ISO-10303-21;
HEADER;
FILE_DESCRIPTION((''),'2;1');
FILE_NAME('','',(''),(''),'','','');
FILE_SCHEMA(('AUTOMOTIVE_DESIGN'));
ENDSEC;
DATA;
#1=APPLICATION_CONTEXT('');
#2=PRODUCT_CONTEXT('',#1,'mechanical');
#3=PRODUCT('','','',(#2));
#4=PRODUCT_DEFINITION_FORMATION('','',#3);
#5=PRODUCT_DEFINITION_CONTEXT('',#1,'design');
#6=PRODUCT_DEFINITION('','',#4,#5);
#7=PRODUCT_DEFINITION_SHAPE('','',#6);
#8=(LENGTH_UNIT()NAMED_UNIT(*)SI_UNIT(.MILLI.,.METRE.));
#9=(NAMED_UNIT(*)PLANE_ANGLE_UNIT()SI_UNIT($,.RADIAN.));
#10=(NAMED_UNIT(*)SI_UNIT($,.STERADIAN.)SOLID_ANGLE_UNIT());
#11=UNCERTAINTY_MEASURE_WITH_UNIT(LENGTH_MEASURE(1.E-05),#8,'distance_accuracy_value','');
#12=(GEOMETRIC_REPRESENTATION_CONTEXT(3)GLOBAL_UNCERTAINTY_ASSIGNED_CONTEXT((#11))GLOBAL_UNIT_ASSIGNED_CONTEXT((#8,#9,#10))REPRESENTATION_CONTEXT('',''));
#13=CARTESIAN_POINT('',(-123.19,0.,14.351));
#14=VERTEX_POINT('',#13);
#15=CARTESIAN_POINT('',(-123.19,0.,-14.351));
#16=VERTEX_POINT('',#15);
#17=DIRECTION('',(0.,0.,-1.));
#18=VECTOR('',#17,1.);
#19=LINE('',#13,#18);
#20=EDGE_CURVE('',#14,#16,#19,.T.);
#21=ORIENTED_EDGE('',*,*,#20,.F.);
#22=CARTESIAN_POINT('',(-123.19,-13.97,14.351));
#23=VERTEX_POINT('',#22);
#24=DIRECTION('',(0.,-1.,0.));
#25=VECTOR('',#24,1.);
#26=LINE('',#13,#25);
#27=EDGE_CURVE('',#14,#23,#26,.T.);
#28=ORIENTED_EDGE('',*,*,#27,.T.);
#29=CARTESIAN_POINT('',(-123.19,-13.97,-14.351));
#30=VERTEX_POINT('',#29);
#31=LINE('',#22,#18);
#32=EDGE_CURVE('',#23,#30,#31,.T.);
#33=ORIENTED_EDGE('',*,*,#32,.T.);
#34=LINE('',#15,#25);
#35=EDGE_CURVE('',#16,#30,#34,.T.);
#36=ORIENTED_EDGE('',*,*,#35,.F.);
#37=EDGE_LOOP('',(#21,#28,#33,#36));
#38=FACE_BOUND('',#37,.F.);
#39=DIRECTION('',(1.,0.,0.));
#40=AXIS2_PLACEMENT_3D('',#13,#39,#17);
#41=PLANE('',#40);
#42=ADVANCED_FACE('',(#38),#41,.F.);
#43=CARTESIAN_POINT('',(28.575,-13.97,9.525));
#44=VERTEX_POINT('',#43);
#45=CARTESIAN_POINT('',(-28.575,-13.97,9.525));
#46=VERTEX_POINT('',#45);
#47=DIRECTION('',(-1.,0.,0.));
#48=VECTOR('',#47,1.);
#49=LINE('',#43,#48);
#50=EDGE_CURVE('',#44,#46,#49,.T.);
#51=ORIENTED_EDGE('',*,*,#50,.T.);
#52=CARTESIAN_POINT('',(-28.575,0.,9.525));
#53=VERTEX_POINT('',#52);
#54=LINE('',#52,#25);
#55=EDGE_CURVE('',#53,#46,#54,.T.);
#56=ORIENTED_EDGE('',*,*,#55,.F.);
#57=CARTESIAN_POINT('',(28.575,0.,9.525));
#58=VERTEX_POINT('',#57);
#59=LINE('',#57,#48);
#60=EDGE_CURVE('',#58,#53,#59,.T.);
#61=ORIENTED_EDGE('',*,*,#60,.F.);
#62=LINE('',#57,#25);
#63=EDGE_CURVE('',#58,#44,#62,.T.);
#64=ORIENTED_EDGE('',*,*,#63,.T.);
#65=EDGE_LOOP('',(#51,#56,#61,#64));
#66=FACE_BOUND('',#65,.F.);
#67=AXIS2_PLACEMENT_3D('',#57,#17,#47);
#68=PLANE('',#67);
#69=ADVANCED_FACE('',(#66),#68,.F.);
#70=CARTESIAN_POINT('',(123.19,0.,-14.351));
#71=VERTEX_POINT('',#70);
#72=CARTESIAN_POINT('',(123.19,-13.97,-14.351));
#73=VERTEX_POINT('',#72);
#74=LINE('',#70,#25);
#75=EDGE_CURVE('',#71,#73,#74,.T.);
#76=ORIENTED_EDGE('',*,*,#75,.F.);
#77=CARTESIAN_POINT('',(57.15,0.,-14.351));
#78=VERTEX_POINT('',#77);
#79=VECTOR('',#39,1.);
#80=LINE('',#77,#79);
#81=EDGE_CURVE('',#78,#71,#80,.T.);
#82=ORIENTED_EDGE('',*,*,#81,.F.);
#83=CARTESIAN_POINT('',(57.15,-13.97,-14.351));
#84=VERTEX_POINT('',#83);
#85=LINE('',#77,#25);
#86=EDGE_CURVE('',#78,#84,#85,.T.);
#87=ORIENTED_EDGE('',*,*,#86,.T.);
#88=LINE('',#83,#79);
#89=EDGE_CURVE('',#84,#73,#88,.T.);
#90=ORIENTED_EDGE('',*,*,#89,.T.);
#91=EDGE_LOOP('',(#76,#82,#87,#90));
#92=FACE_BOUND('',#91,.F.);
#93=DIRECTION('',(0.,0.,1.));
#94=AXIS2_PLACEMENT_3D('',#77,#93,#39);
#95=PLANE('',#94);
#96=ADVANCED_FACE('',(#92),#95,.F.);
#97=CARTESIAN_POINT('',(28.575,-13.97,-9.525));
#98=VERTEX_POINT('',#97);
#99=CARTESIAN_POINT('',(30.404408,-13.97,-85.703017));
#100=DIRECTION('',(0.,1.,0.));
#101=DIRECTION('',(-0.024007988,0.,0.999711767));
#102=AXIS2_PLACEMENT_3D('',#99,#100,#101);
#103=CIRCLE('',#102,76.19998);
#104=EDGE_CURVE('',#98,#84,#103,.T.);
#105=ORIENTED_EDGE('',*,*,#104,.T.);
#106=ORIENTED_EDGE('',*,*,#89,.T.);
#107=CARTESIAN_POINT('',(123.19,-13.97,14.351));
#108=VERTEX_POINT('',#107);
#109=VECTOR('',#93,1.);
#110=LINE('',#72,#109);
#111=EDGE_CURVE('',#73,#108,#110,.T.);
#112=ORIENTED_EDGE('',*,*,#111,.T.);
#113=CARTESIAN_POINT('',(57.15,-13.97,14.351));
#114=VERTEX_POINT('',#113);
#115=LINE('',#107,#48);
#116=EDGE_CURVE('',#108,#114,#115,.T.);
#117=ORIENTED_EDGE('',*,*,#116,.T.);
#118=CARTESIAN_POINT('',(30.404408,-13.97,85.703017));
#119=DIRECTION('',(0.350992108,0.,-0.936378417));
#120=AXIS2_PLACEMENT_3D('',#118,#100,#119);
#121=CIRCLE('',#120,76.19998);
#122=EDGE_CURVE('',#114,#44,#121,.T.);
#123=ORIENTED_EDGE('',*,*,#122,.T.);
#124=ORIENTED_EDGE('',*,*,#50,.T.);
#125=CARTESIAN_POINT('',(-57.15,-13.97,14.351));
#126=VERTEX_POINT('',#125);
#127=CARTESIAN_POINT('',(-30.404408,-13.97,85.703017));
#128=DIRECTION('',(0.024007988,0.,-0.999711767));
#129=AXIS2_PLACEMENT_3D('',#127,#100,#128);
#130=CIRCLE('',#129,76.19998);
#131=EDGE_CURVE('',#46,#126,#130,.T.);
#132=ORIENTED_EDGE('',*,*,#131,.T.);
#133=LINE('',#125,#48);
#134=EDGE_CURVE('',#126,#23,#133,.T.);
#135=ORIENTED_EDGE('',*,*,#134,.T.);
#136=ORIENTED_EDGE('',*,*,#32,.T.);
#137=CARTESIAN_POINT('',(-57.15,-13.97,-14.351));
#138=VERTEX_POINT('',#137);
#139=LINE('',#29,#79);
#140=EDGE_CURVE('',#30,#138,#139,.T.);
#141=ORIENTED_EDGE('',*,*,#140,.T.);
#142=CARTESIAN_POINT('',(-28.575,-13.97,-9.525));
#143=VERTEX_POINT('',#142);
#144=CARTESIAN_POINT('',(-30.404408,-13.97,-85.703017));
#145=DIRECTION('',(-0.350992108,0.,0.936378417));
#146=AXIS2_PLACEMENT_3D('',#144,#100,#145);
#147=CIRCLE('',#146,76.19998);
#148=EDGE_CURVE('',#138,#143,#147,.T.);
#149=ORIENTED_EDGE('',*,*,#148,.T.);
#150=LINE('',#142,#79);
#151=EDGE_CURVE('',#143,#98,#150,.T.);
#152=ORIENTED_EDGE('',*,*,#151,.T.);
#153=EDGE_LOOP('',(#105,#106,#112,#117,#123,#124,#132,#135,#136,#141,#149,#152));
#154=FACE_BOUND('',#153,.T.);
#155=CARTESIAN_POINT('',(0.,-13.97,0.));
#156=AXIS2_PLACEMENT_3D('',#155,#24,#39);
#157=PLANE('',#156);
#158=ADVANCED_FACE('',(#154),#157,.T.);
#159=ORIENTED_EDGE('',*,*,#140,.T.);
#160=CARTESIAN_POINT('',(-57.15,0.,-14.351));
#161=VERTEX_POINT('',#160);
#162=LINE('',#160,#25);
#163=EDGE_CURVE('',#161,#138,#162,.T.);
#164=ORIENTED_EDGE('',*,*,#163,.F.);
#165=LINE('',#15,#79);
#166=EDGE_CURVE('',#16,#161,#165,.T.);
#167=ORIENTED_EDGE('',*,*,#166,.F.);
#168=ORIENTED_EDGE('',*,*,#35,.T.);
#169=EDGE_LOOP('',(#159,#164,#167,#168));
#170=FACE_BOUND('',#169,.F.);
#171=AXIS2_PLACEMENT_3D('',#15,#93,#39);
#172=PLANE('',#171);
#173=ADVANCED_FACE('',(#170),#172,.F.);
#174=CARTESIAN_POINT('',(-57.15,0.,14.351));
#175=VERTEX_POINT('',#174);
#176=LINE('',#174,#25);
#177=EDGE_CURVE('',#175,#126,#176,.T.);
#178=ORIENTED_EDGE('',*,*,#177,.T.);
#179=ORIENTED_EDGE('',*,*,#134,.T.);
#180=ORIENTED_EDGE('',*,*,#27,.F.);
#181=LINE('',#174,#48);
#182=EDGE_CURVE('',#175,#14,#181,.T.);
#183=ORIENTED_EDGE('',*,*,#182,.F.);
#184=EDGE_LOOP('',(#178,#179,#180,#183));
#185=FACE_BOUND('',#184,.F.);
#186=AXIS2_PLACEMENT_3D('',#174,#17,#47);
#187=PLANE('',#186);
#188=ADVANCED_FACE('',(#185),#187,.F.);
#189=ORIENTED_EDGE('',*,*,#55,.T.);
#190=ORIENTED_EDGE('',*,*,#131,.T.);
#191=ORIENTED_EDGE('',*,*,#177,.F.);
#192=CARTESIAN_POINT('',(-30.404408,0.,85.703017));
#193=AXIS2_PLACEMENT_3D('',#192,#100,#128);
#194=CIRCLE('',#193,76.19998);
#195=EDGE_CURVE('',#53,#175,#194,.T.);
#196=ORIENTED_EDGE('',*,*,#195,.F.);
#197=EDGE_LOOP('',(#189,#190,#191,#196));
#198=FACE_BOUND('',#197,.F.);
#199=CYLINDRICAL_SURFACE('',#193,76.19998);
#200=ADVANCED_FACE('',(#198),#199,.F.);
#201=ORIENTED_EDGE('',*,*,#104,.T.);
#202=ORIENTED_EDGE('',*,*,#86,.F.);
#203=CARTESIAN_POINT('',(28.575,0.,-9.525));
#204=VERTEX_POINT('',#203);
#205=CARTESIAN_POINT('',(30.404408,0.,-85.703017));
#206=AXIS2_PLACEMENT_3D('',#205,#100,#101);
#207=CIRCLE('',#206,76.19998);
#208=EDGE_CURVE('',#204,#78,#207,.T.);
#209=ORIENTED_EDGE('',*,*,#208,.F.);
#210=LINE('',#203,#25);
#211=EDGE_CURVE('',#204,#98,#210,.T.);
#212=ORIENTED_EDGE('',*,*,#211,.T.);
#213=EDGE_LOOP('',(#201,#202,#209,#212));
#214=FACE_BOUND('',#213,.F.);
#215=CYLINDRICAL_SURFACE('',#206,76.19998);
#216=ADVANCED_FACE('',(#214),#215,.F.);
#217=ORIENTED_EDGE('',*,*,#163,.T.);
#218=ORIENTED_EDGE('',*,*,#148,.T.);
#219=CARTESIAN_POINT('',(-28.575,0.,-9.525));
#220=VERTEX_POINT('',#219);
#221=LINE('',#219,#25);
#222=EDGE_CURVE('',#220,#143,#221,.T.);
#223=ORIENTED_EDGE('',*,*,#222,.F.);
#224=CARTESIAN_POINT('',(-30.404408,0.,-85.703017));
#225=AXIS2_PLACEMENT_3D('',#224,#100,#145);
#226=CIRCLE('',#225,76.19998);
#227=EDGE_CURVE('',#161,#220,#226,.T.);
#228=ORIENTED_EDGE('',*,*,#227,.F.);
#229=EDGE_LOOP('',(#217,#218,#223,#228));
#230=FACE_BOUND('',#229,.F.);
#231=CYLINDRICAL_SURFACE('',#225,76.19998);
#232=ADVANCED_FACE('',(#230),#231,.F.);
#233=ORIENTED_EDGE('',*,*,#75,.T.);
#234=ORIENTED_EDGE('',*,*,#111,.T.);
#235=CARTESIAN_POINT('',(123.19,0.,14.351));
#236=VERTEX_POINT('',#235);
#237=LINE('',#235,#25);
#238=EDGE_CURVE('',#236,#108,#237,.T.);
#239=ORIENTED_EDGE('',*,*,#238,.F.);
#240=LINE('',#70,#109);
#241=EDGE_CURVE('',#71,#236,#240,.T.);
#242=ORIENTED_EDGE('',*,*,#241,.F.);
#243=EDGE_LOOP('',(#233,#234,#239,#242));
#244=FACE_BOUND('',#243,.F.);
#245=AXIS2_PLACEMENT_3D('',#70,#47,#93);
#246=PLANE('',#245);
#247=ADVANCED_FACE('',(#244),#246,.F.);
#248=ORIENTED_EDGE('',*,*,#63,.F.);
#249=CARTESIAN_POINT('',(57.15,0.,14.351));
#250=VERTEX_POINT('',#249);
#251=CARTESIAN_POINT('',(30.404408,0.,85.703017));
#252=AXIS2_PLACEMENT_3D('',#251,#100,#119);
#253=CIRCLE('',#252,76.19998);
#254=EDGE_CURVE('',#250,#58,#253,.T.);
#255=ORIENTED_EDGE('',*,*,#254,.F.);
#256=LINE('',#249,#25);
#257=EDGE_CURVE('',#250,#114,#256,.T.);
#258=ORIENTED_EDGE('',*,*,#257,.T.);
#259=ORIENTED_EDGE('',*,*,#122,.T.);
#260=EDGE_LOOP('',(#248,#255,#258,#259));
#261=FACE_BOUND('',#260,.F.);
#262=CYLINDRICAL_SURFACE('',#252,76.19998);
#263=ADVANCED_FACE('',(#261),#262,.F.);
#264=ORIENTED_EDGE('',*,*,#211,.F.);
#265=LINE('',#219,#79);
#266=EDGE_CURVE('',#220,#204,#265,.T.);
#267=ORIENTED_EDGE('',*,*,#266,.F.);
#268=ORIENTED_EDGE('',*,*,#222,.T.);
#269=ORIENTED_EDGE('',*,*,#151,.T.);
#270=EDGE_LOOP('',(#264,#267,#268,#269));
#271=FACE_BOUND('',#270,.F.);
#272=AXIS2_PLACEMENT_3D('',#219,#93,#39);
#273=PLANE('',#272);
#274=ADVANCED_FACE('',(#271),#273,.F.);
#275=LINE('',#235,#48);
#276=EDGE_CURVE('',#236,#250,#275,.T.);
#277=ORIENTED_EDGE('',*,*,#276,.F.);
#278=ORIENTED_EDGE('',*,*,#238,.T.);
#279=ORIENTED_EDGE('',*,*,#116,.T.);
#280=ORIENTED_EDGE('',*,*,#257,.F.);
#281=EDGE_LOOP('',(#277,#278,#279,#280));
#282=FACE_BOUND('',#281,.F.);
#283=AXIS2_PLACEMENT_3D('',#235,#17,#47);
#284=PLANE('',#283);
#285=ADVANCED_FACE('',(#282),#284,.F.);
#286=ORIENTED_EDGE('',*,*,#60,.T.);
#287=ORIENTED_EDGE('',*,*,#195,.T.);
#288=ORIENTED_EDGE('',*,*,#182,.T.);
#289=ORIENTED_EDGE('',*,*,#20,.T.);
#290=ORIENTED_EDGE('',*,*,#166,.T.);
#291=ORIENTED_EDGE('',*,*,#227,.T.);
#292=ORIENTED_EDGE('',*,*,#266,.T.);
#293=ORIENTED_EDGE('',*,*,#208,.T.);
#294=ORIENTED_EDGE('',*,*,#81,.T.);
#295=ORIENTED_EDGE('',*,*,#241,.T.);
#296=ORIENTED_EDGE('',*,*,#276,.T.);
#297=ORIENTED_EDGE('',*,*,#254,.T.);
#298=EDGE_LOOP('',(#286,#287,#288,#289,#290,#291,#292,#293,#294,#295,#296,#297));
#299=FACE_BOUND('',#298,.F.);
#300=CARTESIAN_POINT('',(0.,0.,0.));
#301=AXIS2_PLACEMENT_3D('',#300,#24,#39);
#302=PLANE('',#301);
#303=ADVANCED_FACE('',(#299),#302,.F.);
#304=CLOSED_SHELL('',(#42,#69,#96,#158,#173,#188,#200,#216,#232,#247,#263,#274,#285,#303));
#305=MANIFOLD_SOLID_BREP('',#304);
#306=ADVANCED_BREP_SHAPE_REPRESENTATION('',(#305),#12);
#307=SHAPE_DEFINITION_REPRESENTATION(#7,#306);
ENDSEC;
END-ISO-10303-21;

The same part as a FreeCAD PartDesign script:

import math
import FreeCAD as App
import Part
import Sketcher
Q = App.Units.Quantity

doc = App.newDocument("Part")
body = doc.addObject("PartDesign::Body", "Body")

# Sketch on XZ plane
sketch1 = body.newObject("Sketcher::SketchObject", "Sketch")
sketch1.AttachmentSupport = (doc.getObject("XZ_Plane"), [""])
sketch1.MapMode = "FlatFace"
sketch1.addGeometry([
    Part.LineSegment(App.Vector(29, 10, 0), App.Vector(-29, 10, 0)),  # 0
    Part.ArcOfCircle(Part.Circle(App.Vector(-30, 86, 0), App.Vector(0, 0, 1), 76), math.radians(-111), math.radians(-89)),  # 1
    Part.LineSegment(App.Vector(-57, 14, 0), App.Vector(-123, 14, 0)),  # 2
    Part.LineSegment(App.Vector(-123, 14, 0), App.Vector(-123, -14, 0)),  # 3
    Part.LineSegment(App.Vector(-123, -14, 0), App.Vector(-57, -14, 0)),  # 4
    Part.ArcOfCircle(Part.Circle(App.Vector(-30, -86, 0), App.Vector(0, 0, 1), 76), math.radians(89), math.radians(111)),  # 5
    Part.LineSegment(App.Vector(-29, -10, 0), App.Vector(29, -10, 0)),  # 6
    Part.ArcOfCircle(Part.Circle(App.Vector(30, -86, 0), App.Vector(0, 0, 1), 76), math.radians(69), math.radians(91)),  # 7
    Part.LineSegment(App.Vector(57, -14, 0), App.Vector(123, -14, 0)),  # 8
    Part.LineSegment(App.Vector(123, -14, 0), App.Vector(123, 14, 0)),  # 9
    Part.LineSegment(App.Vector(123, 14, 0), App.Vector(57, 14, 0)),  # 10
    Part.ArcOfCircle(Part.Circle(App.Vector(30, 86, 0), App.Vector(0, 0, 1), 76), math.radians(-91), math.radians(-69)),  # 11
], False)
sketch1.addConstraint([
    Sketcher.Constraint("Coincident", 0, 2, 1, 2),
    Sketcher.Constraint("Coincident", 1, 1, 2, 1),
    Sketcher.Constraint("Coincident", 2, 2, 3, 1),
    Sketcher.Constraint("Coincident", 3, 2, 4, 1),
    Sketcher.Constraint("Coincident", 4, 2, 5, 2),
    Sketcher.Constraint("Coincident", 5, 1, 6, 1),
    Sketcher.Constraint("Coincident", 6, 2, 7, 2),
    Sketcher.Constraint("Coincident", 7, 1, 8, 1),
    Sketcher.Constraint("Coincident", 8, 2, 9, 1),
    Sketcher.Constraint("Coincident", 9, 2, 10, 1),
    Sketcher.Constraint("Coincident", 10, 2, 11, 2),
    Sketcher.Constraint("Coincident", 11, 1, 0, 1),
    Sketcher.Constraint("Horizontal", 0),
    Sketcher.Constraint("Horizontal", 2),
    Sketcher.Constraint("Vertical", 3),
    Sketcher.Constraint("Horizontal", 4),
    Sketcher.Constraint("Horizontal", 6),
    Sketcher.Constraint("Horizontal", 8),
    Sketcher.Constraint("Vertical", 9),
    Sketcher.Constraint("Horizontal", 10),
    Sketcher.Constraint("Equal", 1, 5),
    Sketcher.Constraint("Equal", 5, 7),
    Sketcher.Constraint("Equal", 7, 11),
    Sketcher.Constraint("Symmetric", 1, 3, 7, 3, -1, 1),
    Sketcher.Constraint("Symmetric", 5, 3, 11, 3, -1, 1),
    Sketcher.Constraint("Symmetric", 2, 2, 8, 2, -1, 1),
    Sketcher.Constraint("Symmetric", 5, 3, 7, 3, -2),
    Sketcher.Constraint("Horizontal", 4, 2, 7, 1),
    Sketcher.Constraint("Horizontal", 2, 2, 9, 2),
    Sketcher.Constraint("Vertical", 0, 2, 5, 1),
    Sketcher.Constraint("DistanceX", 2, 2, 2, 1, Q("2.6 in")),
    Sketcher.Constraint("DistanceX", 0, 2, 0, 1, Q("2.25 in")),
    Sketcher.Constraint("DistanceY", 3, 2, 3, 1, Q("1.13 in")),
    Sketcher.Constraint("DistanceX", 1, 1, -1, 1, Q("2.25 in")),
    Sketcher.Constraint("DistanceY", 0, 2, 1, 1, Q("0.19 in")),
    Sketcher.Constraint("Radius", 1, 76.19998),
])
pad1 = body.newObject("PartDesign::Pad", "Pad")
pad1.Profile = sketch1
pad1.Length = Q("0.55 in")

doc.recompute()
